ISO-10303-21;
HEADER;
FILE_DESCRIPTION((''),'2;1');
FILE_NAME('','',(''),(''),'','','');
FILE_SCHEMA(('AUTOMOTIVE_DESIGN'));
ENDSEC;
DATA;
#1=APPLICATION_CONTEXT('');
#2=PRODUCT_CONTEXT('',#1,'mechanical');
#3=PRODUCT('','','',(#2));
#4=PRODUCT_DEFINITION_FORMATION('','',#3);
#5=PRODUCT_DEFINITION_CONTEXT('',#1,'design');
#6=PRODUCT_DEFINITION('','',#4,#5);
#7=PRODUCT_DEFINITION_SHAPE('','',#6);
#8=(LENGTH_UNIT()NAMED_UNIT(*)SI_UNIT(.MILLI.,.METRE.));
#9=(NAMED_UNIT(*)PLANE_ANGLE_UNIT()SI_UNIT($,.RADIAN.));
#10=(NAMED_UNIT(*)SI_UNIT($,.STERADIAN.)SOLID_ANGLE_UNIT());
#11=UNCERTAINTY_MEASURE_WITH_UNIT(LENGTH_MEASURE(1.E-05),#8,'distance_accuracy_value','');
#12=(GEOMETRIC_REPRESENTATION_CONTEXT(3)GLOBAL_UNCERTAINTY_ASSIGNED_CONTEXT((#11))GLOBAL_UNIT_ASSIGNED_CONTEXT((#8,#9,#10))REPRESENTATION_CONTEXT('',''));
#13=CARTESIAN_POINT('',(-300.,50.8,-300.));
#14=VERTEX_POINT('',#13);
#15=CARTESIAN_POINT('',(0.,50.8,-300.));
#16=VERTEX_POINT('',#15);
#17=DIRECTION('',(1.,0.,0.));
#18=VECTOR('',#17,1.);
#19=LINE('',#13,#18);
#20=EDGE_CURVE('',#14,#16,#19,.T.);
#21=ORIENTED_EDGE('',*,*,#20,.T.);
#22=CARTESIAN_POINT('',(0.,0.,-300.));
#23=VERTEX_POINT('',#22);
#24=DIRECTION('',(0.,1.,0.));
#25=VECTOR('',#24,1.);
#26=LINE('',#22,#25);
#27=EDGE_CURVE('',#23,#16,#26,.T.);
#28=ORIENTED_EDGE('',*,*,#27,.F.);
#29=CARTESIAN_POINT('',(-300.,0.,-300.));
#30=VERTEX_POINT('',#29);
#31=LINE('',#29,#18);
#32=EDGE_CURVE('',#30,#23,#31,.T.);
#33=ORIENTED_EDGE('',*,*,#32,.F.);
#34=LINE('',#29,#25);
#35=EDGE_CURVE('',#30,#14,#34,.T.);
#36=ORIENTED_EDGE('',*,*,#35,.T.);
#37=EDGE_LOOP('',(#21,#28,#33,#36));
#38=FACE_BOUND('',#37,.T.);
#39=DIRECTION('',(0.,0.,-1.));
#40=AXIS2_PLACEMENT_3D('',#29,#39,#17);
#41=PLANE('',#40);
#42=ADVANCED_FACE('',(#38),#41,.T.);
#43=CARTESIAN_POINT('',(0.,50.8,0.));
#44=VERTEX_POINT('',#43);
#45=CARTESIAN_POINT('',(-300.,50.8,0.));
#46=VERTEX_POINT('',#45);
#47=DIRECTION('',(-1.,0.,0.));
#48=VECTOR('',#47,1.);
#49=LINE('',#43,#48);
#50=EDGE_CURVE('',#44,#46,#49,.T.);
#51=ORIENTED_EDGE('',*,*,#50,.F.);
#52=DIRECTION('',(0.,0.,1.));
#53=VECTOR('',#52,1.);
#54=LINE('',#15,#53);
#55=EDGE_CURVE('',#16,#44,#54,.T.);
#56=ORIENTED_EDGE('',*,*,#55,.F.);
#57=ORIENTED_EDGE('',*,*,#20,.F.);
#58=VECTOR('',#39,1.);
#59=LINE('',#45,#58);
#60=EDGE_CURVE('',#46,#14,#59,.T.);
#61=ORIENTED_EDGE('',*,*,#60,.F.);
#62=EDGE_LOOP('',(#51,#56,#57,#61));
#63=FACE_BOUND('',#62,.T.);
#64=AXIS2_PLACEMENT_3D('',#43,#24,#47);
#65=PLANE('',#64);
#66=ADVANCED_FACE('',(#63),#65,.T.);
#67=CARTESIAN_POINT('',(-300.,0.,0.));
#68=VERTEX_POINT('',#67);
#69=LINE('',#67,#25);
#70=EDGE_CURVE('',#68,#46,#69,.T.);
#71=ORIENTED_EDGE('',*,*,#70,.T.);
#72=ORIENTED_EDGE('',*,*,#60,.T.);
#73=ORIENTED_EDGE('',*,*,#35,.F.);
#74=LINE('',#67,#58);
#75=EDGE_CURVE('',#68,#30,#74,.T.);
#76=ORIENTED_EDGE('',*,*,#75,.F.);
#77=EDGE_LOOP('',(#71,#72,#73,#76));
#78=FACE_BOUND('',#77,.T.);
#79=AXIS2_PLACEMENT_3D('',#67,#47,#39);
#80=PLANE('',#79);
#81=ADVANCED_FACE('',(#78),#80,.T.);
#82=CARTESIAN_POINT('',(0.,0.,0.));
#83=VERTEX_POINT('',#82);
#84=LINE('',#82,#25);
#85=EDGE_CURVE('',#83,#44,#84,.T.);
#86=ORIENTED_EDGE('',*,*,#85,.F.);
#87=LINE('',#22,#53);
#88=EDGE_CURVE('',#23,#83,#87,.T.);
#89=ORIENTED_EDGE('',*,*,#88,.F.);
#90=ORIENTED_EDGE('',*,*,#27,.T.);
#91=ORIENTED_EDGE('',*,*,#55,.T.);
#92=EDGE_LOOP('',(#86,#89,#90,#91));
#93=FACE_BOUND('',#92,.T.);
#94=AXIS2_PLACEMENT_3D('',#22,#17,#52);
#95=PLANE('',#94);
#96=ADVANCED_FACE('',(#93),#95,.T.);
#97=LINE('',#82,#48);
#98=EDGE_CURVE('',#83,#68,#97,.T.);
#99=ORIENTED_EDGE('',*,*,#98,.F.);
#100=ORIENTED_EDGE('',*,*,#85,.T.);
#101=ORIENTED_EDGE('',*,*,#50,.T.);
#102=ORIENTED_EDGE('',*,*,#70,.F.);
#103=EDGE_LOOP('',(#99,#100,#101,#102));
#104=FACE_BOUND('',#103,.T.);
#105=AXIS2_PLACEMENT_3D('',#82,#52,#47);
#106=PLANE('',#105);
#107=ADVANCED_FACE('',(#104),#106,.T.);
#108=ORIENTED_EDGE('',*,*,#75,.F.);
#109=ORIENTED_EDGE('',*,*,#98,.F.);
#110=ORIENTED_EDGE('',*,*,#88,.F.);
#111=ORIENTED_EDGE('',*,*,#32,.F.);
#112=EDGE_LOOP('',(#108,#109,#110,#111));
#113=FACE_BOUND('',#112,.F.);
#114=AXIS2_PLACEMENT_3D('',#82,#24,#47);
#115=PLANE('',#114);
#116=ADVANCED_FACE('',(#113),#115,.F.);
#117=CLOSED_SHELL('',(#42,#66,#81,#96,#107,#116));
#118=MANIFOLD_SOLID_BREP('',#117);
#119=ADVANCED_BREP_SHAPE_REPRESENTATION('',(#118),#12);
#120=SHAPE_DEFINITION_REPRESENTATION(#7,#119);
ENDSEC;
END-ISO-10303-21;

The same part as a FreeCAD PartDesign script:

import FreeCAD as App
import Part
import Sketcher

V = App.Vector


def add_polygon(sketch, points):
    """Adds a closed chain of lines whose ends are joined by coincident constraints."""
    first, n = sketch.GeometryCount, len(points)
    for a, b in zip(points, points[1:] + points[:1]):
        sketch.addGeometry(Part.LineSegment(App.Vector(*a, 0), App.Vector(*b, 0)), False)
    for i in range(n):
        sketch.addConstraint(Sketcher.Constraint("Coincident", first + i, 2, first + (i + 1) % n, 1))

doc = App.newDocument("Part")
body = doc.addObject("PartDesign::Body", "Body")

# Sketch on XZ plane
sketch1 = doc.addObject("Sketcher::SketchObject", "Sketch")
body.addObject(sketch1)
sketch1.AttachmentSupport = (doc.XZ_Plane, [""])
sketch1.MapMode = "FlatFace"
add_polygon(sketch1, [(-300, 0), (0, 0), (0, -300), (-300, -300)])  # lines 0-3
sketch1.addConstraint(Sketcher.Constraint("Horizontal", 0))
sketch1.addConstraint(Sketcher.Constraint("Vertical", 1))
sketch1.addConstraint(Sketcher.Constraint("Horizontal", 2))
sketch1.addConstraint(Sketcher.Constraint("Vertical", 3))
sketch1.addConstraint(Sketcher.Constraint("Coincident", 0, 2, -1, 1))
sketch1.addConstraint(Sketcher.Constraint("Equal", 2, 1))
sketch1.addConstraint(Sketcher.Constraint("DistanceX", 0, 1, 0, 2, 300.0))
pad1 = doc.addObject("PartDesign::Pad", "Pad")
body.addObject(pad1)
pad1.Profile = sketch1
pad1.Length = 50.8
pad1.Reversed = True

doc.recompute()
